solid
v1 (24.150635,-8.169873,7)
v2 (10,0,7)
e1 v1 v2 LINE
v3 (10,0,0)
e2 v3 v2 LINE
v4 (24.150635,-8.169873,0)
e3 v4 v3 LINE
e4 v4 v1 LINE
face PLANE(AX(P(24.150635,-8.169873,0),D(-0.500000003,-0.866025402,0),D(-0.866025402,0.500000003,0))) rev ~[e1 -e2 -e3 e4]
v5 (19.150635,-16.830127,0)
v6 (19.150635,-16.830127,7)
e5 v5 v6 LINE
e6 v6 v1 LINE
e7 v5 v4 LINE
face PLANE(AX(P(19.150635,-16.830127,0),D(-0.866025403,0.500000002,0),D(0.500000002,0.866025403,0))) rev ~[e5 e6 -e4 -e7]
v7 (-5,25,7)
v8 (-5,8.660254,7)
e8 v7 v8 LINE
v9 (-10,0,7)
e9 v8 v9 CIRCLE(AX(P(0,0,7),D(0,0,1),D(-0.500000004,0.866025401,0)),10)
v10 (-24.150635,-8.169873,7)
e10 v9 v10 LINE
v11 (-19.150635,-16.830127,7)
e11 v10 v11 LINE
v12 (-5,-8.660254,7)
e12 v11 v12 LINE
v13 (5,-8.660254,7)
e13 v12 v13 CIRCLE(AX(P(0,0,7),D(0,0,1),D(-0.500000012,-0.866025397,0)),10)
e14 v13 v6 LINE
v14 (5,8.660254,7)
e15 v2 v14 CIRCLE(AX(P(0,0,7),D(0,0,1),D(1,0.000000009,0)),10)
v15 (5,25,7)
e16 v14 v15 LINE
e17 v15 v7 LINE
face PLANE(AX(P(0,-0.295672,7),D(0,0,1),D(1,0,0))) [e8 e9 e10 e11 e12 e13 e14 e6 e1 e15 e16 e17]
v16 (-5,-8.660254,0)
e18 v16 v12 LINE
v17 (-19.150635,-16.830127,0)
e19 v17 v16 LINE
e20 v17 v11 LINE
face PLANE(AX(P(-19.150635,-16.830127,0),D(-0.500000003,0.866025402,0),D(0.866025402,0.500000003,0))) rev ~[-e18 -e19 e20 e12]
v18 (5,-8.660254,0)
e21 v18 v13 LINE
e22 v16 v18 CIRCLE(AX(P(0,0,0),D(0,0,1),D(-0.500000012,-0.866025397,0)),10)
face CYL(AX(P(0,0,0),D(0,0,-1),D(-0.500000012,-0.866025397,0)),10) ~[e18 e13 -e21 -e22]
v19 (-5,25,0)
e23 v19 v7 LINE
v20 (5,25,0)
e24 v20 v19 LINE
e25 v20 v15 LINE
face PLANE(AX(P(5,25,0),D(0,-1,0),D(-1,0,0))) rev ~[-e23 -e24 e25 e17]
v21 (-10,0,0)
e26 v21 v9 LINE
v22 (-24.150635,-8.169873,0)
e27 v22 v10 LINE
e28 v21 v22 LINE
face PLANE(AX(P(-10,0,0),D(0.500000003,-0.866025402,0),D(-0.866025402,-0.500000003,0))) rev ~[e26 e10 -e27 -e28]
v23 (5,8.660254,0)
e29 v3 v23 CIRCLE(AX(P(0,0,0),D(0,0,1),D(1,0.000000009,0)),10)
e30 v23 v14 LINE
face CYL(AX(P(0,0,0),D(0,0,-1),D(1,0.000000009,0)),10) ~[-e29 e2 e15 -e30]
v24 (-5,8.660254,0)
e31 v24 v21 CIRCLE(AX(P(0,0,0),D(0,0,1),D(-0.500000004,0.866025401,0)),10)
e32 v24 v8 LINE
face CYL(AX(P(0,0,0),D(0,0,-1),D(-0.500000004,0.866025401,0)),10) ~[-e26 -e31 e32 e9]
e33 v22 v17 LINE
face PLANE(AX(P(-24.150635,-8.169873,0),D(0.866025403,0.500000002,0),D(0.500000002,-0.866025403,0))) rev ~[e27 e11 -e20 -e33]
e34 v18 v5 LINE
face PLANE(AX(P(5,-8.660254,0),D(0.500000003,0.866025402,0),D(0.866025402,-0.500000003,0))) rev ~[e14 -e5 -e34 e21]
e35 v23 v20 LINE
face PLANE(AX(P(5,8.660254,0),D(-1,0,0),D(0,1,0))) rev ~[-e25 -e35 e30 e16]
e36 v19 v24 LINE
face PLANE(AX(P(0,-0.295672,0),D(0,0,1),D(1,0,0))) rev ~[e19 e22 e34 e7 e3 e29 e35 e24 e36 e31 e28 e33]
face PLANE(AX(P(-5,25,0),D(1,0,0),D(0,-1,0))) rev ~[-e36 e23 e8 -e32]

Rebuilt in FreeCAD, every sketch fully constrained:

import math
import FreeCAD as App
import Part
import Sketcher
from FreeCAD import Vector
Q = App.Units.Quantity

doc = App.newDocument("Part")
body = doc.addObject("PartDesign::Body", "Body")

sketch1 = doc.addObject("Sketcher::SketchObject", "Sketch")
body.addObject(sketch1)
sketch1.AttachmentSupport = (doc.XY_Plane, [""])
sketch1.MapMode = "FlatFace"
sketch1.addGeometry([
    Part.ArcOfCircle(Part.Circle(Vector(0, 0, 0), Vector(0, 0, 1), 10), math.radians(120), math.radians(179.999999)),
    Part.LineSegment(Vector(-10, 0, 0), Vector(-24.150635, -8.169873, 0)),
    Part.LineSegment(Vector(-24.150635, -8.169873, 0), Vector(-19.150635, -16.830127, 0)),
    Part.LineSegment(Vector(-19.150635, -16.830127, 0), Vector(-5, -8.660254, 0)),
    Part.ArcOfCircle(Part.Circle(Vector(0, 0, 0), Vector(0, 0, 1), 10), math.radians(-120.000001), math.radians(-59.999999)),
    Part.LineSegment(Vector(5, -8.660254, 0), Vector(19.150635, -16.830127, 0)),
    Part.LineSegment(Vector(19.150635, -16.830127, 0), Vector(24.150635, -8.169873, 0)),
    Part.LineSegment(Vector(24.150635, -8.169873, 0), Vector(10, 0, 0)),
    Part.ArcOfCircle(Part.Circle(Vector(0, 0, 0), Vector(0, 0, 1), 10), math.radians(0.000001), math.radians(60)),
    Part.LineSegment(Vector(5, 8.660254, 0), Vector(5, 25, 0)),
    Part.LineSegment(Vector(5, 25, 0), Vector(-5, 25, 0)),
    Part.LineSegment(Vector(-5, 25, 0), Vector(-5, 8.660254, 0)),
], False)
sketch1.addConstraint([
    Sketcher.Constraint("Coincident", 0, 2, 1, 1),
    Sketcher.Constraint("Coincident", 1, 2, 2, 1),
    Sketcher.Constraint("Coincident", 2, 2, 3, 1),
    Sketcher.Constraint("Coincident", 3, 2, 4, 1),
    Sketcher.Constraint("Coincident", 4, 2, 5, 1),
    Sketcher.Constraint("Coincident", 5, 2, 6, 1),
    Sketcher.Constraint("Coincident", 6, 2, 7, 1),
    Sketcher.Constraint("Coincident", 7, 2, 8, 1),
    Sketcher.Constraint("Coincident", 8, 2, 9, 1),
    Sketcher.Constraint("Coincident", 9, 2, 10, 1),
    Sketcher.Constraint("Coincident", 10, 2, 11, 1),
    Sketcher.Constraint("Coincident", 11, 2, 0, 1),
    Sketcher.Constraint("Vertical", 9),
    Sketcher.Constraint("Horizontal", 10),
    Sketcher.Constraint("Vertical", 11),
    Sketcher.Constraint("Coincident", 0, 3, -1, 1),
    Sketcher.Constraint("Coincident", 4, 3, -1, 1),
    Sketcher.Constraint("Coincident", 8, 3, -1, 1),
    Sketcher.Constraint("Equal", 0, 4),
    Sketcher.Constraint("Equal", 4, 8),
    Sketcher.Constraint("Symmetric", 2, 2, 5, 2, -2),
    Sketcher.Constraint("Symmetric", 1, 2, 6, 2, -2),
    Sketcher.Constraint("PointOnObject", 0, 2, -1),
    Sketcher.Constraint("PointOnObject", 7, 2, -1),
    Sketcher.Constraint("Perpendicular", 1, 2),
    Sketcher.Constraint("Perpendicular", 2, 3),
    Sketcher.Constraint("Perpendicular", 5, 6),
    Sketcher.Constraint("Horizontal", 8, 2, 11, 2),
    Sketcher.Constraint("Vertical", 4, 2, 8, 2),
    Sketcher.Constraint("Equal", 1, 3),
    Sketcher.Constraint("Radius", 0, Q("10 mm")),
    Sketcher.Constraint("DistanceX", 10, 2, 10, 1, Q("10 mm")),
    Sketcher.Constraint("DistanceY", -1, 1, 9, 2, Q("25 mm")),
    Sketcher.Constraint("DistanceY", 4, 2, 6, 2, Q("0.490381 mm")),
])
pad1 = doc.addObject("PartDesign::Pad", "Pad")
body.addObject(pad1)
pad1.Profile = sketch1
pad1.Length = 7

doc.recompute()
